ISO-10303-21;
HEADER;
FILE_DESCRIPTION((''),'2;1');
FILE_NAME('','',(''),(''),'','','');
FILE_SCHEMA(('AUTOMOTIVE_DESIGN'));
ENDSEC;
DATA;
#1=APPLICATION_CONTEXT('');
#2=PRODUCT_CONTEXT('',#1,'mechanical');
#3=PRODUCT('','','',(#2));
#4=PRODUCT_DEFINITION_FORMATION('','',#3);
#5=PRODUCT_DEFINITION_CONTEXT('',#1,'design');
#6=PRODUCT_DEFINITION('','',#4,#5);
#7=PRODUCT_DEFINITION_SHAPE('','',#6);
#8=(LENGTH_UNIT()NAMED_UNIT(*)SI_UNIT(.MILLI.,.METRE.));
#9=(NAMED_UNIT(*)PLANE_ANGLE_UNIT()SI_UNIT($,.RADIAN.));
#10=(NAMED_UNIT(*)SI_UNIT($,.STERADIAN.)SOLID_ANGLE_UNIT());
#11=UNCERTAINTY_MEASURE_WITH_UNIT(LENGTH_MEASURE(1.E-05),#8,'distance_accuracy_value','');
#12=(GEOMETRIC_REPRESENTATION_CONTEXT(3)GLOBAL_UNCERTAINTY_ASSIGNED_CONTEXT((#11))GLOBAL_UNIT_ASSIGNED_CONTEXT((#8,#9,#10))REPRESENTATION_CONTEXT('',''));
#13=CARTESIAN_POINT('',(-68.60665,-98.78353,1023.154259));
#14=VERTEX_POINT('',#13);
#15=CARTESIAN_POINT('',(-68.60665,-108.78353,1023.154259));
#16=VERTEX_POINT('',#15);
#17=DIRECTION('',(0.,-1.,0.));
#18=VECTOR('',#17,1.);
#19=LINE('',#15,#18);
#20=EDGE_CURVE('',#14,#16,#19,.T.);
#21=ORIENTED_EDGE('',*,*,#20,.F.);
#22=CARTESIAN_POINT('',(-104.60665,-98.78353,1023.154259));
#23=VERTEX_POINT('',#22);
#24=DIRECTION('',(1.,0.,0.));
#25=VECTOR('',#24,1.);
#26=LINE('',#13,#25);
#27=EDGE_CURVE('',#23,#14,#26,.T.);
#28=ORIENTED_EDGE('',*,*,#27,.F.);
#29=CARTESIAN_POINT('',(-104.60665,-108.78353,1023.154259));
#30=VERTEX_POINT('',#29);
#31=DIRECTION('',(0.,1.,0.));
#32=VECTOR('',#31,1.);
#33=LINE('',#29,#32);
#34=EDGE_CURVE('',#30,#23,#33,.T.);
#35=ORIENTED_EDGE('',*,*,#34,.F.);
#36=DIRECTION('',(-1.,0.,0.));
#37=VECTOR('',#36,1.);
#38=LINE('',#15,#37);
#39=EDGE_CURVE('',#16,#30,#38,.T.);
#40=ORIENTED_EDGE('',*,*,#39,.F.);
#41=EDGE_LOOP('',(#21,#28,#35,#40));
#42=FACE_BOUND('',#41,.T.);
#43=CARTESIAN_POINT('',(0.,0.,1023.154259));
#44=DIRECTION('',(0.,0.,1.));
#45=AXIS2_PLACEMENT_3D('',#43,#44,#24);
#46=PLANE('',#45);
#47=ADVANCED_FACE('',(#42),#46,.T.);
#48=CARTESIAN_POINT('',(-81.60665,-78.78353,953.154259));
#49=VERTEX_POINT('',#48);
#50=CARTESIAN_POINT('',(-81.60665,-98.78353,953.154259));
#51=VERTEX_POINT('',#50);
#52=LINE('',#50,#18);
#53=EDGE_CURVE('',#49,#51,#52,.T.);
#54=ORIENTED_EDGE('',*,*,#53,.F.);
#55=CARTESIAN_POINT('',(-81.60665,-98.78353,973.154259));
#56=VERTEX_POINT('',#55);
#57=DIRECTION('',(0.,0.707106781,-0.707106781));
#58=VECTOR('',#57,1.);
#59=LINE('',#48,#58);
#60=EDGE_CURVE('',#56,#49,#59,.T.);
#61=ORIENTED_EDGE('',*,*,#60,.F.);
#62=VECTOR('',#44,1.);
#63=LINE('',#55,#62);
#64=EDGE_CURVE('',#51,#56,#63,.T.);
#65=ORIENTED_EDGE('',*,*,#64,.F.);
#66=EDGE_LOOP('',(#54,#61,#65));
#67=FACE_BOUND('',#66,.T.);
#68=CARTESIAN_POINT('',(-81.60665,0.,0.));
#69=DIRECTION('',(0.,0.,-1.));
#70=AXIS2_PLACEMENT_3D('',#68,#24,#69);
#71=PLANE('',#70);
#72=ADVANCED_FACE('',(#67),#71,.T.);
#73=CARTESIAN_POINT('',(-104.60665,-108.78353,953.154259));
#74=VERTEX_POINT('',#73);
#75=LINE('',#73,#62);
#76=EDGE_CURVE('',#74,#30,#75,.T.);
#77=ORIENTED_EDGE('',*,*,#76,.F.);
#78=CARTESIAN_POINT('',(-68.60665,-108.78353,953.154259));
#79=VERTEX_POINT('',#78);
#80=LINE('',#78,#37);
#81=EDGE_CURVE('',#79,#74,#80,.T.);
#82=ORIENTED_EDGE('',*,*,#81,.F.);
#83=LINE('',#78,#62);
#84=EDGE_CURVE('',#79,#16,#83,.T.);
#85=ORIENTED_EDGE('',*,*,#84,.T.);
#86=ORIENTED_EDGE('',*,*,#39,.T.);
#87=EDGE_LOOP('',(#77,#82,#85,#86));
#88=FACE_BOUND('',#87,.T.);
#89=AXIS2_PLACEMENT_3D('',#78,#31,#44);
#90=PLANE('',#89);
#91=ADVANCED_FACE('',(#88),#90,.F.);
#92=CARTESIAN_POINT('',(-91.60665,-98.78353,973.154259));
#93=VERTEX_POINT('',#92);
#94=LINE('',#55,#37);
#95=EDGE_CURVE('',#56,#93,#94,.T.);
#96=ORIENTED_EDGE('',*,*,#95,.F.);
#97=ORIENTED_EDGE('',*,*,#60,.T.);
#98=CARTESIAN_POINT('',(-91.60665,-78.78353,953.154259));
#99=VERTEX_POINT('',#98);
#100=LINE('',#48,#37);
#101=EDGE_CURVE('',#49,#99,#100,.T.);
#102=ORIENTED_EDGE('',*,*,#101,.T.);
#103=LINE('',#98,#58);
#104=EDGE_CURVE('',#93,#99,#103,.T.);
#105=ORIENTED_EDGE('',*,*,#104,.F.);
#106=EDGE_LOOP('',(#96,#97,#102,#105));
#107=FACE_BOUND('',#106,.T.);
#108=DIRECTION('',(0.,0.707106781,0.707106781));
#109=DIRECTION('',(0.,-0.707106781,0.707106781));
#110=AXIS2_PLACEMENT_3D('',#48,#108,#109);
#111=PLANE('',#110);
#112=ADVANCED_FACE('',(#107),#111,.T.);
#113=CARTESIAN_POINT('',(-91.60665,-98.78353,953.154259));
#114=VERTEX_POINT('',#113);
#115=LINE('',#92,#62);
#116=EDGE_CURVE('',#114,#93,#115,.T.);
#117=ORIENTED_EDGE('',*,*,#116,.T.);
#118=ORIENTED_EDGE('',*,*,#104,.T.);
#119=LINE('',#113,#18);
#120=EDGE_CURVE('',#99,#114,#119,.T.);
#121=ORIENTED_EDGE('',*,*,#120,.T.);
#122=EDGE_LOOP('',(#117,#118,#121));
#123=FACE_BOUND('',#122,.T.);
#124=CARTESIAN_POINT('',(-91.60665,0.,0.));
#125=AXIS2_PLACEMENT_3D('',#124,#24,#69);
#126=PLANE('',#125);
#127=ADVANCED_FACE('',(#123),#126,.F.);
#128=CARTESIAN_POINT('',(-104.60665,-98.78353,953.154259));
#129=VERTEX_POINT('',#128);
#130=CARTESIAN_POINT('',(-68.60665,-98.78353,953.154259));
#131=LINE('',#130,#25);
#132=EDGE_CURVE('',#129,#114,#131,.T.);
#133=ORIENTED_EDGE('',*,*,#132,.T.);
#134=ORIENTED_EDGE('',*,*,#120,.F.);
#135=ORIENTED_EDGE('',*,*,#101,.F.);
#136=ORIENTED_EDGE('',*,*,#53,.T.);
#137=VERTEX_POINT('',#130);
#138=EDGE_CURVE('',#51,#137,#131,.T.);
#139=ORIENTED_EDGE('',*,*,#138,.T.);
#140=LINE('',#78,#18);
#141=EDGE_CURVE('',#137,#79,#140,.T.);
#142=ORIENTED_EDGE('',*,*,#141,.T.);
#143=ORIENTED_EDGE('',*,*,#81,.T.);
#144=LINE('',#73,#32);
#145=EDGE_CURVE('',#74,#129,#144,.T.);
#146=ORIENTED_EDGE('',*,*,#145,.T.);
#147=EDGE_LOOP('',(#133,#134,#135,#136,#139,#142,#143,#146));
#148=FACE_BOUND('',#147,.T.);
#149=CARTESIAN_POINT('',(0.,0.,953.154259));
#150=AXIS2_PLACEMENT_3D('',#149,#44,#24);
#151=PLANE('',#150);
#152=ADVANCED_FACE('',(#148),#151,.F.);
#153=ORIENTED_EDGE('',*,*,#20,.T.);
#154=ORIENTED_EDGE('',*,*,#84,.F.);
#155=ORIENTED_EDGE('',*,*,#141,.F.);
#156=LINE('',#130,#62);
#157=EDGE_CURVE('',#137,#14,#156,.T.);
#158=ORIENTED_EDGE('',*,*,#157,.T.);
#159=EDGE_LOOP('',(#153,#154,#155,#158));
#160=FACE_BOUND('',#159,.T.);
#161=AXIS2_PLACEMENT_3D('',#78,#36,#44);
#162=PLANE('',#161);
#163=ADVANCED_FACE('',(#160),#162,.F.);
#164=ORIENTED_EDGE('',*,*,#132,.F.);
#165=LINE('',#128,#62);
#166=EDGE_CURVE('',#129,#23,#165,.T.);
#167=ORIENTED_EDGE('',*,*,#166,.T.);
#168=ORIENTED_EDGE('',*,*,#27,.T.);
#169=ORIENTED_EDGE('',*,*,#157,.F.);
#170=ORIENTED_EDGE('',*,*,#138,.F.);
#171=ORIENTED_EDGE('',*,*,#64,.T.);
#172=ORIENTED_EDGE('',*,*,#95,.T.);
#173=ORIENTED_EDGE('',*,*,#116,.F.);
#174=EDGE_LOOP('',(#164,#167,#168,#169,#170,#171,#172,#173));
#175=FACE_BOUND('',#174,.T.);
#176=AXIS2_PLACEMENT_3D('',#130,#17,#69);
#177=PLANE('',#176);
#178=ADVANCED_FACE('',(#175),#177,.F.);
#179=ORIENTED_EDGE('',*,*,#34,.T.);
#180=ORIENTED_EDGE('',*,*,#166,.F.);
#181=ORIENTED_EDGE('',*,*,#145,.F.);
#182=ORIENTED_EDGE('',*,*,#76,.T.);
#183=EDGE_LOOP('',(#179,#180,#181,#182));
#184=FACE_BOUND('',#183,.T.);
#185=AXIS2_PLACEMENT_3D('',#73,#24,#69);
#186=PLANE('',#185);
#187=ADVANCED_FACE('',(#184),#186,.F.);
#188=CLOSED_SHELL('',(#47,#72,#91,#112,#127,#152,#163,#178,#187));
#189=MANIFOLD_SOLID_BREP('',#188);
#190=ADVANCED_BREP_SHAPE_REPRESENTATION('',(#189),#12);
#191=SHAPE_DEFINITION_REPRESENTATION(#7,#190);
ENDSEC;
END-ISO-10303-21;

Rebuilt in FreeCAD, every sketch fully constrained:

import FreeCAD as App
import Part
import Sketcher

V = App.Vector


def add_polygon(sketch, points):
    """Adds a closed chain of lines whose ends are joined by coincident constraints."""
    first, n = sketch.GeometryCount, len(points)
    for a, b in zip(points, points[1:] + points[:1]):
        sketch.addGeometry(Part.LineSegment(App.Vector(*a, 0), App.Vector(*b, 0)), False)
    for i in range(n):
        sketch.addConstraint(Sketcher.Constraint("Coincident", first + i, 2, first + (i + 1) % n, 1))

doc = App.newDocument("Part")
body = doc.addObject("PartDesign::Body", "Body")

sketch1 = body.newObject("Sketcher::SketchObject", "Sketch")
sketch1.AttachmentSupport = (doc.getObject("XY_Plane"), [""])
sketch1.MapMode = "FlatFace"
sketch1.AttachmentOffset = App.Placement(V(0, 0, 1023.154259), App.Rotation())
add_polygon(sketch1, [(-69, -99), (-69, -109), (-105, -109), (-105, -99)])
sketch1.addConstraint([
    Sketcher.Constraint("Vertical", 0),
    Sketcher.Constraint("Horizontal", 1),
    Sketcher.Constraint("Vertical", 2),
    Sketcher.Constraint("Horizontal", 3),
    Sketcher.Constraint("DistanceX", 1, 2, 1, 1, 36.0),
    Sketcher.Constraint("DistanceY", 0, 2, 0, 1, 10.0),
    Sketcher.Constraint("DistanceX", 0, 2, -1, 1, 68.60665),
    Sketcher.Constraint("DistanceY", 0, 2, -1, 1, 108.78353),
])
pad1 = body.newObject("PartDesign::Pad", "Pad")
pad1.Profile = sketch1
pad1.Length = 70
pad1.Reversed = True

sketch2 = body.newObject("Sketcher::SketchObject", "Sketch001")
sketch2.AttachmentSupport = (doc.getObject("YZ_Plane"), [""])
sketch2.MapMode = "FlatFace"
sketch2.AttachmentOffset = App.Placement(V(0, 0, -86.60665), App.Rotation())
add_polygon(sketch2, [(-79, 953), (-99, 953), (-99, 973)])
sketch2.addConstraint([
    Sketcher.Constraint("Horizontal", 0),
    Sketcher.Constraint("Vertical", 1),
    Sketcher.Constraint("Equal", 0, 1),
    Sketcher.Constraint("DistanceX", 0, 2, 0, 1, 20.0),
    Sketcher.Constraint("DistanceX", 0, 2, -1, 1, 98.78353),
    Sketcher.Constraint("DistanceY", -1, 1, 0, 2, 953.154259),
])
pad2 = body.newObject("PartDesign::Pad", "Pad001")
pad2.Profile = sketch2
pad2.Type = "TwoLengths"
pad2.Length = 5
pad2.Length2 = 5
pad2.Reversed = True

doc.recompute()
